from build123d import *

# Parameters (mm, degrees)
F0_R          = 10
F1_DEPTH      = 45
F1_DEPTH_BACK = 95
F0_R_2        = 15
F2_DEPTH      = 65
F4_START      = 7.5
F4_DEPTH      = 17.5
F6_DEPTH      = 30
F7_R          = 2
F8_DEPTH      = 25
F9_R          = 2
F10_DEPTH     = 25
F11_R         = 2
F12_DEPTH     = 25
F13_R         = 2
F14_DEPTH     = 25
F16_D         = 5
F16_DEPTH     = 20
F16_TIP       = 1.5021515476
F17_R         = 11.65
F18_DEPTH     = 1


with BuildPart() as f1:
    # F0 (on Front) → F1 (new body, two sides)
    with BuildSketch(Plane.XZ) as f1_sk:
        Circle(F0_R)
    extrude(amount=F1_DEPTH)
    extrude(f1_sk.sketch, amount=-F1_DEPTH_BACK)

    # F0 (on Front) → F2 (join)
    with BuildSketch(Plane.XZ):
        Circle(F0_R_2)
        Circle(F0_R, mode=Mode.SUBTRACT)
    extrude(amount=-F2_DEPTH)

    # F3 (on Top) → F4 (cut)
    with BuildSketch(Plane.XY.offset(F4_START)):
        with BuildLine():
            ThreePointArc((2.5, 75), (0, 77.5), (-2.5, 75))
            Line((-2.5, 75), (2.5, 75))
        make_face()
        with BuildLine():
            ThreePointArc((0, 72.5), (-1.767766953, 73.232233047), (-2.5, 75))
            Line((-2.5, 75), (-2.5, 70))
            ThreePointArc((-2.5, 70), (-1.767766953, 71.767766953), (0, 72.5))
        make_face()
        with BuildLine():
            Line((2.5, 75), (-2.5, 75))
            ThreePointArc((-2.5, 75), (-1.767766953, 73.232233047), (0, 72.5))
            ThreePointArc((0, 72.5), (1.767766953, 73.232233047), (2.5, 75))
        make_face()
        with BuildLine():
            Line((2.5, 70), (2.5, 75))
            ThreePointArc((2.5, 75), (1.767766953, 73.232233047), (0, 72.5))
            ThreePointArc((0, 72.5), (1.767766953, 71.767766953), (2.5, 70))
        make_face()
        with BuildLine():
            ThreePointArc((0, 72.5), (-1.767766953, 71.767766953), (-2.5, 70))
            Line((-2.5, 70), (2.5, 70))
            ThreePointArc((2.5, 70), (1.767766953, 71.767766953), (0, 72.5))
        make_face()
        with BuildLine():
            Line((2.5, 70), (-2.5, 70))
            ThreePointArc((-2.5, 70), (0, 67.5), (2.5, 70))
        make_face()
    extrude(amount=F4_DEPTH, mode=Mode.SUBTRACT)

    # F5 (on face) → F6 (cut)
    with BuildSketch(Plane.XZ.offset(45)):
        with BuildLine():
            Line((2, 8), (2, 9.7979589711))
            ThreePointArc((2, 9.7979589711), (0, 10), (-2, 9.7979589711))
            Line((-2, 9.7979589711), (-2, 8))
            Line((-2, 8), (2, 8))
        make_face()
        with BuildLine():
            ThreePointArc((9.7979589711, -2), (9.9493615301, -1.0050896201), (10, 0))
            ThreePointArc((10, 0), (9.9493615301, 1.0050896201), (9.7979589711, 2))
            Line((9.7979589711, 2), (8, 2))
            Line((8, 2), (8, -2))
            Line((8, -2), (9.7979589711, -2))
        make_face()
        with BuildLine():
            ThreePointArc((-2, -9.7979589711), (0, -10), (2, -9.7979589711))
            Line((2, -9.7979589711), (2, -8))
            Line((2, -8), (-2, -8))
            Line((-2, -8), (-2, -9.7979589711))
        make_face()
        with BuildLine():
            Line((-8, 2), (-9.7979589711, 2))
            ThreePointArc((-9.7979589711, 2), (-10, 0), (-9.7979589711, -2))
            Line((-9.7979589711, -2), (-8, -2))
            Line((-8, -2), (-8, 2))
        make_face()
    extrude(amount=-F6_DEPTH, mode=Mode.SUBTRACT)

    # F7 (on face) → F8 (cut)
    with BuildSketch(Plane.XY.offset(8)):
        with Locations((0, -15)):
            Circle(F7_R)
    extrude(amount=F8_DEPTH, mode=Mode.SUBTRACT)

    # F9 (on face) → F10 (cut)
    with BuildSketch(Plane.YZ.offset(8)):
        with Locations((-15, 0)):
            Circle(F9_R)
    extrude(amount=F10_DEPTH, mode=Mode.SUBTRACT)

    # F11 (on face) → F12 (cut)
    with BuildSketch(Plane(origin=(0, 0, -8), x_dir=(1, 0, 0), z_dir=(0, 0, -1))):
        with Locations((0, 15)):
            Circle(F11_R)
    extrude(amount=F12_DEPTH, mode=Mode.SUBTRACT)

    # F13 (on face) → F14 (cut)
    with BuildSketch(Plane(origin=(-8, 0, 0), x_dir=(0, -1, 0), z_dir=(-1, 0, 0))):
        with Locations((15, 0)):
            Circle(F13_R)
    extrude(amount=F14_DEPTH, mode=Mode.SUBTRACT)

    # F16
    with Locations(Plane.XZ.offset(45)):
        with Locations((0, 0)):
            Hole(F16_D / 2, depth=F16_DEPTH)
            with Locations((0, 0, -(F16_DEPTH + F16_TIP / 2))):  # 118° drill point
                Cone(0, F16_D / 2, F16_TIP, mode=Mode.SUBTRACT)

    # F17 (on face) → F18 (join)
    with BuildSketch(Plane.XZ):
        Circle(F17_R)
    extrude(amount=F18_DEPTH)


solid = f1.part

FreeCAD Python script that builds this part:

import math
import FreeCAD as App
import Part
import Sketcher
Q = App.Units.Quantity

doc = App.newDocument("Part")
params = doc.addObject("Spreadsheet::Sheet", "Params")
for row, (alias, value) in enumerate([
    ("sketch1_diameter", "20 mm"),
    ("pad1_length", "45 mm"),
    ("pad1_length2", "95 mm"),
    ("sketch2_diameter", "30 mm"),
    ("sketch2_diameter2", "20 mm"),
    ("pad2_length", "65 mm"),
    ("sketch3_radius", "2.5 mm"),
    ("sketch3_height", "5 mm"),
    ("pocket1_length", "17.5 mm"),
    ("sketch4_radius", "10 mm"),
    ("sketch4_width", "4 mm"),
    ("pocket2_length", "30 mm"),
    ("sketch5_diameter", "4 mm"),
    ("pocket3_length", "25 mm"),
    ("sketch6_diameter", "4 mm"),
    ("pocket4_length", "25 mm"),
    ("sketch7_diameter", "4 mm"),
    ("pocket5_length", "25 mm"),
    ("sketch8_diameter", "4 mm"),
    ("pocket6_length", "25 mm"),
    ("sketch9_diameter", "5 mm"),
    ("hole_diameter", "5 mm"),
    ("hole_depth", "20 mm"),
    ("sketch10_diameter", "23.3 mm"),
    ("pad3_length", "1 mm"),
], start=1):
    params.set(f"A{row}", alias)
    params.set(f"B{row}", "=" + value)
    params.setAlias(f"B{row}", alias)

body = doc.addObject("PartDesign::Body", "Body")

# Sketch on XZ plane
sketch1 = doc.addObject("Sketcher::SketchObject", "Sketch")
body.addObject(sketch1)
sketch1.AttachmentSupport = (doc.XZ_Plane, [""])
sketch1.MapMode = "FlatFace"
sketch1.addGeometry(Part.Circle(App.Vector(0, 0, 0), App.Vector(0, 0, 1), 10), False)
sketch1.addConstraint([
    Sketcher.Constraint("Coincident", 0, 3, -1, 1),
    Sketcher.Constraint("Diameter", 0, Q("20 mm")),
])
sketch1.setExpression("Constraints[1]", "Params.sketch1_diameter")
pad1 = doc.addObject("PartDesign::Pad", "Pad")
body.addObject(pad1)
pad1.Profile = sketch1
pad1.Type = "TwoLengths"
pad1.setExpression("Length", "Params.pad1_length")
pad1.setExpression("Length2", "Params.pad1_length2")

# Sketch on XZ plane
sketch2 = doc.addObject("Sketcher::SketchObject", "Sketch001")
body.addObject(sketch2)
sketch2.AttachmentSupport = (doc.XZ_Plane, [""])
sketch2.MapMode = "FlatFace"
sketch2.addGeometry([
    Part.Circle(App.Vector(0, 0, 0), App.Vector(0, 0, 1), 15),
    Part.Circle(App.Vector(0, 0, 0), App.Vector(0, 0, 1), 10),
], False)
sketch2.addConstraint([
    Sketcher.Constraint("Coincident", 0, 3, -1, 1),
    Sketcher.Constraint("Coincident", 1, 3, -1, 1),
    Sketcher.Constraint("Diameter", 0, Q("30 mm")),
    Sketcher.Constraint("Diameter", 1, Q("20 mm")),
])
sketch2.setExpression("Constraints[2]", "Params.sketch2_diameter")
sketch2.setExpression("Constraints[3]", "Params.sketch2_diameter2")
pad2 = doc.addObject("PartDesign::Pad", "Pad001")
body.addObject(pad2)
pad2.Profile = sketch2
pad2.setExpression("Length", "Params.pad2_length")
pad2.Reversed = True

# Sketch on XY plane
sketch3 = doc.addObject("Sketcher::SketchObject", "Sketch002")
body.addObject(sketch3)
sketch3.AttachmentSupport = (doc.XY_Plane, [""])
sketch3.MapMode = "FlatFace"
sketch3.AttachmentOffset = App.Placement(App.Vector(0, 0, 7.5), App.Rotation())
sketch3.addGeometry([
    Part.ArcOfCircle(Part.Circle(App.Vector(0, 75, 0), App.Vector(0, 0, 1), 2.5), math.radians(0), math.radians(180)),
    Part.LineSegment(App.Vector(-2.5, 75, 0), App.Vector(-2.5, 70, 0)),
    Part.ArcOfCircle(Part.Circle(App.Vector(0, 70, 0), App.Vector(0, 0, 1), 2.5), math.radians(180), math.radians(360)),
    Part.LineSegment(App.Vector(2.5, 70, 0), App.Vector(2.5, 75, 0)),
], False)
sketch3.addConstraint([
    Sketcher.Constraint("Tangent", 0, 2, 1, 1),
    Sketcher.Constraint("Tangent", 1, 2, 2, 1),
    Sketcher.Constraint("Tangent", 2, 2, 3, 1),
    Sketcher.Constraint("Tangent", 3, 2, 0, 1),
    Sketcher.Constraint("Vertical", 1),
    Sketcher.Constraint("Vertical", 3),
    Sketcher.Constraint("PointOnObject", 0, 3, -2),
    Sketcher.Constraint("Radius", 0, Q("2.5 mm")),
    Sketcher.Constraint("DistanceY", 1, 2, 1, 1, Q("5 mm")),
    Sketcher.Constraint("DistanceY", -1, 1, 0, 3, Q("75 mm")),
])
sketch3.setExpression("Constraints[7]", "Params.sketch3_radius")
sketch3.setExpression("Constraints[8]", "Params.sketch3_height")
pocket1 = doc.addObject("PartDesign::Pocket", "Pocket")
body.addObject(pocket1)
pocket1.Profile = sketch3
pocket1.setExpression("Length", "Params.pocket1_length")
pocket1.Reversed = True

# Sketch on XZ plane
sketch4 = doc.addObject("Sketcher::SketchObject", "Sketch003")
body.addObject(sketch4)
sketch4.AttachmentSupport = (doc.XZ_Plane, [""])
sketch4.MapMode = "FlatFace"
sketch4.AttachmentOffset = App.Placement(App.Vector(0, 0, 45), App.Rotation())
sketch4.addGeometry([
    Part.LineSegment(App.Vector(2, 8, 0), App.Vector(2, 9.8, 0)),  # 0
    Part.ArcOfCircle(Part.Circle(App.Vector(0, 0, 0), App.Vector(0, 0, 1), 10), math.radians(78), math.radians(102)),  # 1
    Part.LineSegment(App.Vector(-2, 9.8, 0), App.Vector(-2, 8, 0)),  # 2
    Part.LineSegment(App.Vector(-2, 8, 0), App.Vector(2, 8, 0)),  # 3
    Part.ArcOfCircle(Part.Circle(App.Vector(0, 0, 0), App.Vector(0, 0, 1), 10), math.radians(-11.54), math.radians(0)),  # 4
    Part.ArcOfCircle(Part.Circle(App.Vector(0, 0, 0), App.Vector(0, 0, 1), 10), math.radians(0), math.radians(11.54)),  # 5
    Part.LineSegment(App.Vector(9.8, 2, 0), App.Vector(8, 2, 0)),  # 6
    Part.LineSegment(App.Vector(8, 2, 0), App.Vector(8, -2, 0)),  # 7
    Part.LineSegment(App.Vector(8, -2, 0), App.Vector(9.8, -2, 0)),  # 8
    Part.ArcOfCircle(Part.Circle(App.Vector(0, 0, 0), App.Vector(0, 0, 1), 10), math.radians(-102), math.radians(-78)),  # 9
    Part.LineSegment(App.Vector(2, -9.8, 0), App.Vector(2, -8, 0)),  # 10
    Part.LineSegment(App.Vector(2, -8, 0), App.Vector(-2, -8, 0)),  # 11
    Part.LineSegment(App.Vector(-2, -8, 0), App.Vector(-2, -9.8, 0)),  # 12
    Part.LineSegment(App.Vector(-8, 2, 0), App.Vector(-9.8, 2, 0)),  # 13
    Part.ArcOfCircle(Part.Circle(App.Vector(0, 0, 0), App.Vector(0, 0, 1), 10), math.radians(168), math.radians(192)),  # 14
    Part.LineSegment(App.Vector(-9.8, -2, 0), App.Vector(-8, -2, 0)),  # 15
    Part.LineSegment(App.Vector(-8, -2, 0), App.Vector(-8, 2, 0)),  # 16
], False)
sketch4.addConstraint([
    Sketcher.Constraint("Coincident", 0, 2, 1, 1),
    Sketcher.Constraint("Coincident", 1, 2, 2, 1),
    Sketcher.Constraint("Coincident", 2, 2, 3, 1),
    Sketcher.Constraint("Coincident", 3, 2, 0, 1),
    Sketcher.Constraint("Tangent", 4, 2, 5, 1),
    Sketcher.Constraint("Coincident", 5, 2, 6, 1),
    Sketcher.Constraint("Coincident", 6, 2, 7, 1),
    Sketcher.Constraint("Coincident", 7, 2, 8, 1),
    Sketcher.Constraint("Coincident", 8, 2, 4, 1),
    Sketcher.Constraint("Coincident", 9, 2, 10, 1),
    Sketcher.Constraint("Coincident", 10, 2, 11, 1),
    Sketcher.Constraint("Coincident", 11, 2, 12, 1),
    Sketcher.Constraint("Coincident", 12, 2, 9, 1),
    Sketcher.Constraint("Coincident", 13, 2, 14, 1),
    Sketcher.Constraint("Coincident", 14, 2, 15, 1),
    Sketcher.Constraint("Coincident", 15, 2, 16, 1),
    Sketcher.Constraint("Coincident", 16, 2, 13, 1),
    Sketcher.Constraint("Vertical", 0),
    Sketcher.Constraint("Vertical", 2),
    Sketcher.Constraint("Horizontal", 3),
    Sketcher.Constraint("Horizontal", 6),
    Sketcher.Constraint("Vertical", 7),
    Sketcher.Constraint("Horizontal", 8),
    Sketcher.Constraint("Vertical", 10),
    Sketcher.Constraint("Horizontal", 11),
    Sketcher.Constraint("Vertical", 12),
    Sketcher.Constraint("Horizontal", 13),
    Sketcher.Constraint("Horizontal", 15),
    Sketcher.Constraint("Vertical", 16),
    Sketcher.Constraint("Coincident", 1, 3, -1, 1),
    Sketcher.Constraint("Coincident", 4, 3, -1, 1),
    Sketcher.Constraint("Coincident", 9, 3, -1, 1),
    Sketcher.Constraint("Coincident", 14, 3, -1, 1),
    Sketcher.Constraint("Equal", 1, 4),
    Sketcher.Constraint("Equal", 4, 5),
    Sketcher.Constraint("Equal", 5, 9),
    Sketcher.Constraint("Equal", 9, 14),
    Sketcher.Constraint("Symmetric", 2, 2, 10, 2, -1, 1),
    Sketcher.Constraint("Symmetric", 6, 2, 15, 2, -1, 1),
    Sketcher.Constraint("PointOnObject", 4, 2, -1),
    Sketcher.Constraint("Horizontal", 0, 2, 1, 2),
    Sketcher.Constraint("Horizontal", 9, 2, 12, 2),
    Sketcher.Constraint("Horizontal", 6, 2, 13, 2),
    Sketcher.Constraint("Horizontal", 8, 2, 14, 2),
    Sketcher.Constraint("Equal", 15, 0),
    Sketcher.Constraint("Equal", 11, 7),
    Sketcher.Constraint("Radius", 1, Q("10 mm")),
    Sketcher.Constraint("DistanceX", 3, 1, 3, 2, Q("4 mm")),
    Sketcher.Constraint("DistanceY", -1, 1, 2, 2, Q("8 mm")),
])
sketch4.setExpression("Constraints[46]", "Params.sketch4_radius")
sketch4.setExpression("Constraints[47]", "Params.sketch4_width")
pocket2 = doc.addObject("PartDesign::Pocket", "Pocket001")
body.addObject(pocket2)
pocket2.Profile = sketch4
pocket2.setExpression("Length", "Params.pocket2_length")

# Sketch on XY plane
sketch5 = doc.addObject("Sketcher::SketchObject", "Sketch004")
body.addObject(sketch5)
sketch5.AttachmentSupport = (doc.XY_Plane, [""])
sketch5.MapMode = "FlatFace"
sketch5.AttachmentOffset = App.Placement(App.Vector(0, 0, 8), App.Rotation())
sketch5.addGeometry(Part.Circle(App.Vector(0, -15, 0), App.Vector(0, 0, 1), 2), False)
sketch5.addConstraint([
    Sketcher.Constraint("PointOnObject", 0, 3, -2),
    Sketcher.Constraint("Diameter", 0, Q("4 mm")),
    Sketcher.Constraint("DistanceY", 0, 3, -1, 1, Q("15 mm")),
])
sketch5.setExpression("Constraints[1]", "Params.sketch5_diameter")
pocket3 = doc.addObject("PartDesign::Pocket", "Pocket002")
body.addObject(pocket3)
pocket3.Profile = sketch5
pocket3.setExpression("Length", "Params.pocket3_length")
pocket3.Reversed = True

# Sketch on YZ plane
sketch6 = doc.addObject("Sketcher::SketchObject", "Sketch005")
body.addObject(sketch6)
sketch6.AttachmentSupport = (doc.YZ_Plane, [""])
sketch6.MapMode = "FlatFace"
sketch6.AttachmentOffset = App.Placement(App.Vector(0, 0, 8), App.Rotation())
sketch6.addGeometry(Part.Circle(App.Vector(-15, 0, 0), App.Vector(0, 0, 1), 2), False)
sketch6.addConstraint([
    Sketcher.Constraint("PointOnObject", 0, 3, -1),
    Sketcher.Constraint("Diameter", 0, Q("4 mm")),
    Sketcher.Constraint("DistanceX", 0, 3, -1, 1, Q("15 mm")),
])
sketch6.setExpression("Constraints[1]", "Params.sketch6_diameter")
pocket4 = doc.addObject("PartDesign::Pocket", "Pocket003")
body.addObject(pocket4)
pocket4.Profile = sketch6
pocket4.setExpression("Length", "Params.pocket4_length")
pocket4.Reversed = True

# Sketch on XY plane
sketch7 = doc.addObject("Sketcher::SketchObject", "Sketch006")
body.addObject(sketch7)
sketch7.AttachmentSupport = (doc.XY_Plane, [""])
sketch7.MapMode = "FlatFace"
sketch7.AttachmentOffset = App.Placement(App.Vector(0, 0, -8), App.Rotation())
sketch7.addGeometry(Part.Circle(App.Vector(0, -15, 0), App.Vector(0, 0, 1), 2), False)
sketch7.addConstraint([
    Sketcher.Constraint("PointOnObject", 0, 3, -2),
    Sketcher.Constraint("Diameter", 0, Q("4 mm")),
    Sketcher.Constraint("DistanceY", 0, 3, -1, 1, Q("15 mm")),
])
sketch7.setExpression("Constraints[1]", "Params.sketch7_diameter")
pocket5 = doc.addObject("PartDesign::Pocket", "Pocket004")
body.addObject(pocket5)
pocket5.Profile = sketch7
pocket5.setExpression("Length", "Params.pocket5_length")

# Sketch on YZ plane
sketch8 = doc.addObject("Sketcher::SketchObject", "Sketch007")
body.addObject(sketch8)
sketch8.AttachmentSupport = (doc.YZ_Plane, [""])
sketch8.MapMode = "FlatFace"
sketch8.AttachmentOffset = App.Placement(App.Vector(0, 0, -8), App.Rotation())
sketch8.addGeometry(Part.Circle(App.Vector(-15, 0, 0), App.Vector(0, 0, 1), 2), False)
sketch8.addConstraint([
    Sketcher.Constraint("PointOnObject", 0, 3, -1),
    Sketcher.Constraint("Diameter", 0, Q("4 mm")),
    Sketcher.Constraint("DistanceX", 0, 3, -1, 1, Q("15 mm")),
])
sketch8.setExpression("Constraints[1]", "Params.sketch8_diameter")
pocket6 = doc.addObject("PartDesign::Pocket", "Pocket005")
body.addObject(pocket6)
pocket6.Profile = sketch8
pocket6.setExpression("Length", "Params.pocket6_length")

# Sketch on XZ plane
sketch9 = doc.addObject("Sketcher::SketchObject", "Sketch008")
body.addObject(sketch9)
sketch9.AttachmentSupport = (doc.XZ_Plane, [""])
sketch9.MapMode = "FlatFace"
sketch9.AttachmentOffset = App.Placement(App.Vector(0, 0, 45), App.Rotation())
sketch9.addGeometry(Part.Circle(App.Vector(0, 0, 0), App.Vector(0, 0, 1), 2.5), False)
sketch9.addConstraint([
    Sketcher.Constraint("Coincident", 0, 3, -1, 1),
    Sketcher.Constraint("Diameter", 0, Q("5 mm")),
])
sketch9.setExpression("Constraints[1]", "Params.sketch9_diameter")
doc.recompute()
hole = doc.addObject("PartDesign::Hole", "Hole")
body.addObject(hole)
hole.Profile = sketch9
hole.ThreadType = "None"
hole.setExpression("Diameter", "Params.hole_diameter")
hole.DepthType = "Dimension"
hole.setExpression("Depth", "Params.hole_depth")
hole.DrillPoint = "Angled"
hole.DrillPointAngle = 118

# Sketch on XZ plane
sketch10 = doc.addObject("Sketcher::SketchObject", "Sketch009")
body.addObject(sketch10)
sketch10.AttachmentSupport = (doc.XZ_Plane, [""])
sketch10.MapMode = "FlatFace"
sketch10.addGeometry(Part.Circle(App.Vector(0, 0, 0), App.Vector(0, 0, 1), 12), False)
sketch10.addConstraint([
    Sketcher.Constraint("Coincident", 0, 3, -1, 1),
    Sketcher.Constraint("Diameter", 0, Q("23.3 mm")),
])
sketch10.setExpression("Constraints[1]", "Params.sketch10_diameter")
pad3 = doc.addObject("PartDesign::Pad", "Pad002")
body.addObject(pad3)
pad3.Profile = sketch10
pad3.setExpression("Length", "Params.pad3_length")

doc.recompute()
